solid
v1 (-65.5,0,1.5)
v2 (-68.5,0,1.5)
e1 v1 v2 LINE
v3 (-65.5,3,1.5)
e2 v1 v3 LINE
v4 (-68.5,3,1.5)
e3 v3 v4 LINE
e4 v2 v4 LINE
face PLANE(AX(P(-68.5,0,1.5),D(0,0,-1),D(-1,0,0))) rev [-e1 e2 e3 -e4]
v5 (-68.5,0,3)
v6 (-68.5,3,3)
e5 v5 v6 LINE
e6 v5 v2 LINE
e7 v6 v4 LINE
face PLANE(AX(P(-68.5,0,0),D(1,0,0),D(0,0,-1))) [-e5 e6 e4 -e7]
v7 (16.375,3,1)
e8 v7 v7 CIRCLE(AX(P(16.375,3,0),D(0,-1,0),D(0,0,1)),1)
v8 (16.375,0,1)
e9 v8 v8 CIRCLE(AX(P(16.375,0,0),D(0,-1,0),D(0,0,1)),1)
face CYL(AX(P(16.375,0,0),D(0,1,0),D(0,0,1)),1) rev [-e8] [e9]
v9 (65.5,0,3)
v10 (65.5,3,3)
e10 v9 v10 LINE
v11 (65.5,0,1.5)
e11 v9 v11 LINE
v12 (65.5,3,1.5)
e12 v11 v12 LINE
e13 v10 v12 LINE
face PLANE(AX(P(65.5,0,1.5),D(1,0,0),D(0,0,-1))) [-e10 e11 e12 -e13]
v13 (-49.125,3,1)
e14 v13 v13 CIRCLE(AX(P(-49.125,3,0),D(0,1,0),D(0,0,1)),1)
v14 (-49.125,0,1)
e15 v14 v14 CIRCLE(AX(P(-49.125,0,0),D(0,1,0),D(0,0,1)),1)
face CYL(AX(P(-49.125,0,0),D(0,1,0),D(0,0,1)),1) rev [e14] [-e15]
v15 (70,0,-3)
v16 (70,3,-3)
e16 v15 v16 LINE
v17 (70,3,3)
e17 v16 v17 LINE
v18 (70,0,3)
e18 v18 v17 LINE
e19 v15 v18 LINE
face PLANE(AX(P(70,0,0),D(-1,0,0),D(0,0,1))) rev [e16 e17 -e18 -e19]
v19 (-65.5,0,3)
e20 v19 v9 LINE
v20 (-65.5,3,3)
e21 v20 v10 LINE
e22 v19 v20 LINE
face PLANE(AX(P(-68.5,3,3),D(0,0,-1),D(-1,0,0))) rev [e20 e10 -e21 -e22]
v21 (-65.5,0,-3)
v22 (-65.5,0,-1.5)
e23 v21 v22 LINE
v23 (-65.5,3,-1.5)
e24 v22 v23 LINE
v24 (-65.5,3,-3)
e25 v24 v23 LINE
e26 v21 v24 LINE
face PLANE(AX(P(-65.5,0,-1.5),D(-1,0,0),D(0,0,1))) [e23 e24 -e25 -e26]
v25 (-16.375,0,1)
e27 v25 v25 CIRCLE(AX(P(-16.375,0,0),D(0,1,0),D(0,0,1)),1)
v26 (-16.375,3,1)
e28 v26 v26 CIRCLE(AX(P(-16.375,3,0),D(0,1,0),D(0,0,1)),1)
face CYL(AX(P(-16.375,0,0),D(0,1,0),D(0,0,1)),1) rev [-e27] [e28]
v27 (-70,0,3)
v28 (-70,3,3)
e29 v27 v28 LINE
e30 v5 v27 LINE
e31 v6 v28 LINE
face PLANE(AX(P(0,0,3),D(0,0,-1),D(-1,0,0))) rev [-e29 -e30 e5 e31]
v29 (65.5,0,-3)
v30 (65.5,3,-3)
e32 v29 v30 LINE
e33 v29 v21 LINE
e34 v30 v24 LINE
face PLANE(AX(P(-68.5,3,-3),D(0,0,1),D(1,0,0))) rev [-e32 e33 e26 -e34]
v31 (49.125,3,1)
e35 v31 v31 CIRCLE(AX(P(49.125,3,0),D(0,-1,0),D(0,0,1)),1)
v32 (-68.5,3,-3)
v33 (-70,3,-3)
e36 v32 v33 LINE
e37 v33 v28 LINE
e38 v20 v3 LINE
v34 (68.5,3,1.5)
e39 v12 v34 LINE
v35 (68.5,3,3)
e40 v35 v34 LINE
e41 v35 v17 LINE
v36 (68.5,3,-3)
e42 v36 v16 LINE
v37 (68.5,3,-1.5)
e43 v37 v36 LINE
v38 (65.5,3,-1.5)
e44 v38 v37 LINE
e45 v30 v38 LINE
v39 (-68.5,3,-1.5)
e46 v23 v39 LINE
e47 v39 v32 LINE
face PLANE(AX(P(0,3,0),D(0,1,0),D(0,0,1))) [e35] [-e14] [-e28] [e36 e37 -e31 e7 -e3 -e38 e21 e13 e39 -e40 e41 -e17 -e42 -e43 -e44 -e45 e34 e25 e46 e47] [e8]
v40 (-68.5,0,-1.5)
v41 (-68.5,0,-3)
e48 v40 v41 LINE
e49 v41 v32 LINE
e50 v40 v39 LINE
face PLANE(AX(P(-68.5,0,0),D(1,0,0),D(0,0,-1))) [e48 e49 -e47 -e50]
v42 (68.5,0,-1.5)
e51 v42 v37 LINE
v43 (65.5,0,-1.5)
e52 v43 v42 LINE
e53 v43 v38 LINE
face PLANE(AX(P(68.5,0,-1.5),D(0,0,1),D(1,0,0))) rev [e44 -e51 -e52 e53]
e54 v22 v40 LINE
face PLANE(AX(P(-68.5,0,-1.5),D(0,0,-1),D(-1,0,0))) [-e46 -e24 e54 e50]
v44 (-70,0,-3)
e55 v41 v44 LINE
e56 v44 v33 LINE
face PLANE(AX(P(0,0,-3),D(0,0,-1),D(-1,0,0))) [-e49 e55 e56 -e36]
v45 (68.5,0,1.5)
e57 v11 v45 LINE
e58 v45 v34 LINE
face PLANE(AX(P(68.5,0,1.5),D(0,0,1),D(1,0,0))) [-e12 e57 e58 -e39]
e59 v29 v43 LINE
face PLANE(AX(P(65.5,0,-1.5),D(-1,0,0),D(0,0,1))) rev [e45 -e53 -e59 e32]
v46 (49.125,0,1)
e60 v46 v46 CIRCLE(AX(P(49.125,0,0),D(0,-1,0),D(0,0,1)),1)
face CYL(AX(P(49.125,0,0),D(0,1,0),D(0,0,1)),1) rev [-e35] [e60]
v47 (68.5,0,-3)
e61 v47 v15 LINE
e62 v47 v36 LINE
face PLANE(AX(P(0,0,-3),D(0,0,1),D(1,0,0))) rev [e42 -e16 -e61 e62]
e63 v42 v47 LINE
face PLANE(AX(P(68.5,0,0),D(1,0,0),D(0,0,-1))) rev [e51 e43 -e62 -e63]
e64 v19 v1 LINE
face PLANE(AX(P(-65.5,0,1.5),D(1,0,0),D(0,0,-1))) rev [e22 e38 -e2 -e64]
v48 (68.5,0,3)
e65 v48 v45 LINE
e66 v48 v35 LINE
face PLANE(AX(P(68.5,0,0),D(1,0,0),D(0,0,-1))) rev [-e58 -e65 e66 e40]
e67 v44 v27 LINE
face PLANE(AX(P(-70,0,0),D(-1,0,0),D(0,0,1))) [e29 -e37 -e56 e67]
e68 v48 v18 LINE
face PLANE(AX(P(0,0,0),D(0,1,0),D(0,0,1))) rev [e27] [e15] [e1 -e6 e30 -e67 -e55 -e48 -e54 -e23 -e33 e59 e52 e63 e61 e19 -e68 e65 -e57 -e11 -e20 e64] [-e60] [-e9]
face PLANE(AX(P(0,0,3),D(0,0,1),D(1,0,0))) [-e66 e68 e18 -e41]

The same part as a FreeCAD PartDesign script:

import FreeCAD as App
import Part
import Sketcher

V = App.Vector

doc = App.newDocument("Part")
body = doc.addObject("PartDesign::Body", "Body")

# Sketch on XZ plane
sketch1 = doc.addObject("Sketcher::SketchObject", "Sketch")
body.addObject(sketch1)
sketch1.AttachmentSupport = (doc.XZ_Plane, [""])
sketch1.MapMode = "FlatFace"
sketch1.addGeometry([
    Part.LineSegment(V(-68, -3, 0), V(-68, 3, 0)),
    Part.LineSegment(V(-68, 3, 0), V(68, 3, 0)),
    Part.LineSegment(V(68, 3, 0), V(68, -3, 0)),
    Part.LineSegment(V(68, -3, 0), V(-68, -3, 0)),
], False)
sketch1.addConstraint([
    Sketcher.Constraint("Coincident", 0, 2, 1, 1),
    Sketcher.Constraint("Coincident", 1, 2, 2, 1),
    Sketcher.Constraint("Coincident", 2, 2, 3, 1),
    Sketcher.Constraint("Coincident", 3, 2, 0, 1),
    Sketcher.Constraint("Vertical", 0),
    Sketcher.Constraint("Horizontal", 1),
    Sketcher.Constraint("Vertical", 2),
    Sketcher.Constraint("Horizontal", 3),
    Sketcher.Constraint("Symmetric", 0, 2, 2, 2, -1, 1),
    Sketcher.Constraint("DistanceX", 1, 1, 1, 2, 137.0),
    Sketcher.Constraint("DistanceY", 0, 1, 0, 2, 6.0),
])
pad1 = doc.addObject("PartDesign::Pad", "Pad")
body.addObject(pad1)
pad1.Profile = sketch1
pad1.Length = 3
pad1.Reversed = True

# Sketch on XZ plane
sketch2 = doc.addObject("Sketcher::SketchObject", "Sketch001")
body.addObject(sketch2)
sketch2.AttachmentSupport = (doc.XZ_Plane, [""])
sketch2.MapMode = "FlatFace"
sketch2.AttachmentOffset = App.Placement(V(0, 0, -3), App.Rotation())
sketch2.addGeometry([
    Part.LineSegment(V(65.5, -3, 0), V(65.5, -1.5, 0)),
    Part.LineSegment(V(65.5, -1.5, 0), V(68.5, -1.5, 0)),
    Part.LineSegment(V(68.5, -1.5, 0), V(68.5, -3, 0)),
    Part.LineSegment(V(68.5, -3, 0), V(65.5, -3, 0)),
], False)
sketch2.addConstraint([
    Sketcher.Constraint("Coincident", 0, 2, 1, 1),
    Sketcher.Constraint("Coincident", 1, 2, 2, 1),
    Sketcher.Constraint("Coincident", 2, 2, 3, 1),
    Sketcher.Constraint("Coincident", 3, 2, 0, 1),
    Sketcher.Constraint("Vertical", 0),
    Sketcher.Constraint("Horizontal", 1),
    Sketcher.Constraint("Vertical", 2),
    Sketcher.Constraint("Horizontal", 3),
    Sketcher.Constraint("DistanceX", 1, 1, 1, 2, 3.0),
    Sketcher.Constraint("DistanceY", 0, 1, 0, 2, 1.5),
    Sketcher.Constraint("DistanceY", 2, 2, -1, 1, 3.0),
    Sketcher.Constraint("DistanceX", -1, 1, 0, 2, 65.5),
])
pocket1 = doc.addObject("PartDesign::Pocket", "Pocket")
body.addObject(pocket1)
pocket1.Profile = sketch2
pocket1.Length = 3
pocket1.Reversed = True
doc.recompute()

mirrored = doc.addObject("PartDesign::Mirrored", "Mirrored")
body.addObject(mirrored)
mirrored.Originals = [pocket1]
mirrored.MirrorPlane = (doc.XY_Plane, [""])
body.Tip = mirrored
doc.recompute()

mirrored2 = doc.addObject("PartDesign::Mirrored", "Mirrored001")
body.addObject(mirrored2)
mirrored2.Originals = [pocket1]
mirrored2.MirrorPlane = (doc.YZ_Plane, [""])
body.Tip = mirrored2

# Sketch on XZ plane
sketch3 = doc.addObject("Sketcher::SketchObject", "Sketch002")
body.addObject(sketch3)
sketch3.AttachmentSupport = (doc.XZ_Plane, [""])
sketch3.MapMode = "FlatFace"
sketch3.AttachmentOffset = App.Placement(V(0, 0, -3), App.Rotation())
sketch3.addGeometry([
    Part.LineSegment(V(-65.5, 3, 0), V(-65.5, 1.5, 0)),
    Part.LineSegment(V(-65.5, 1.5, 0), V(-68.5, 1.5, 0)),
    Part.LineSegment(V(-68.5, 1.5, 0), V(-68.5, 3, 0)),
    Part.LineSegment(V(-68.5, 3, 0), V(-65.5, 3, 0)),
], False)
sketch3.addConstraint([
    Sketcher.Constraint("Coincident", 0, 2, 1, 1),
    Sketcher.Constraint("Coincident", 1, 2, 2, 1),
    Sketcher.Constraint("Coincident", 2, 2, 3, 1),
    Sketcher.Constraint("Coincident", 3, 2, 0, 1),
    Sketcher.Constraint("Vertical", 0),
    Sketcher.Constraint("Horizontal", 1),
    Sketcher.Constraint("Vertical", 2),
    Sketcher.Constraint("Horizontal", 3),
    Sketcher.Constraint("DistanceX", 1, 2, 1, 1, 3.0),
    Sketcher.Constraint("DistanceY", 0, 2, 0, 1, 1.5),
    Sketcher.Constraint("DistanceY", -1, 1, 2, 2, 3.0),
    Sketcher.Constraint("DistanceX", 0, 2, -1, 1, 65.5),
])
pocket2 = doc.addObject("PartDesign::Pocket", "Pocket001")
body.addObject(pocket2)
pocket2.Profile = sketch3
pocket2.Length = 3
pocket2.Reversed = True

# Sketch on XZ plane
sketch4 = doc.addObject("Sketcher::SketchObject", "Sketch003")
body.addObject(sketch4)
sketch4.AttachmentSupport = (doc.XZ_Plane, [""])
sketch4.MapMode = "FlatFace"
sketch4.AttachmentOffset = App.Placement(V(0, 0, -3), App.Rotation())
sketch4.addGeometry([
    Part.LineSegment(V(70, -3, 0), V(68.5, -3, 0)),
    Part.LineSegment(V(68.5, -3, 0), V(68.5, 3, 0)),
    Part.LineSegment(V(68.5, 3, 0), V(70, 3, 0)),
    Part.LineSegment(V(70, 3, 0), V(70, -3, 0)),
], False)
sketch4.addConstraint([
    Sketcher.Constraint("Coincident", 0, 2, 1, 1),
    Sketcher.Constraint("Coincident", 1, 2, 2, 1),
    Sketcher.Constraint("Coincident", 2, 2, 3, 1),
    Sketcher.Constraint("Coincident", 3, 2, 0, 1),
    Sketcher.Constraint("Horizontal", 0),
    Sketcher.Constraint("Vertical", 1),
    Sketcher.Constraint("Horizontal", 2),
    Sketcher.Constraint("Vertical", 3),
    Sketcher.Constraint("DistanceY", 1, 1, 1, 2, 6.0),
    Sketcher.Constraint("DistanceX", 0, 2, 0, 1, 1.5),
    Sketcher.Constraint("DistanceY", 0, 2, -1, 1, 3.0),
    Sketcher.Constraint("DistanceX", -1, 1, 2, 2, 70.0),
])
pad2 = doc.addObject("PartDesign::Pad", "Pad001")
body.addObject(pad2)
pad2.Profile = sketch4
pad2.Length = 3
doc.recompute()

mirrored3 = doc.addObject("PartDesign::Mirrored", "Mirrored002")
body.addObject(mirrored3)
mirrored3.Originals = [pad2]
mirrored3.MirrorPlane = (doc.YZ_Plane, [""])
body.Tip = mirrored3

# Sketch on XZ plane
sketch5 = doc.addObject("Sketcher::SketchObject", "Sketch004")
body.addObject(sketch5)
sketch5.AttachmentSupport = (doc.XZ_Plane, [""])
sketch5.MapMode = "FlatFace"
sketch5.AttachmentOffset = App.Placement(V(0, 0, -3), App.Rotation())
sketch5.addGeometry([
    Part.Circle(V(-49.1, 0, 0), V(0, 0, 1), 1),
    Part.Circle(V(-16.4, 0, 0), V(0, 0, 1), 1),
], False)
sketch5.addConstraint([
    Sketcher.Constraint("Equal", 0, 1),
    Sketcher.Constraint("PointOnObject", 0, 3, -1),
    Sketcher.Constraint("PointOnObject", 1, 3, -1),
    Sketcher.Constraint("Diameter", 0, 2.0),
    Sketcher.Constraint("DistanceX", 0, 3, 1, 3, 32.75),
    Sketcher.Constraint("DistanceX", 0, 3, -1, 1, 49.125),
])
pocket3 = doc.addObject("PartDesign::Pocket", "Pocket002")
body.addObject(pocket3)
pocket3.Profile = sketch5
pocket3.Length = 3
pocket3.Reversed = True
doc.recompute()

mirrored4 = doc.addObject("PartDesign::Mirrored", "Mirrored003")
body.addObject(mirrored4)
mirrored4.Originals = [pocket3]
mirrored4.MirrorPlane = (doc.YZ_Plane, [""])
body.Tip = mirrored4

doc.recompute()
